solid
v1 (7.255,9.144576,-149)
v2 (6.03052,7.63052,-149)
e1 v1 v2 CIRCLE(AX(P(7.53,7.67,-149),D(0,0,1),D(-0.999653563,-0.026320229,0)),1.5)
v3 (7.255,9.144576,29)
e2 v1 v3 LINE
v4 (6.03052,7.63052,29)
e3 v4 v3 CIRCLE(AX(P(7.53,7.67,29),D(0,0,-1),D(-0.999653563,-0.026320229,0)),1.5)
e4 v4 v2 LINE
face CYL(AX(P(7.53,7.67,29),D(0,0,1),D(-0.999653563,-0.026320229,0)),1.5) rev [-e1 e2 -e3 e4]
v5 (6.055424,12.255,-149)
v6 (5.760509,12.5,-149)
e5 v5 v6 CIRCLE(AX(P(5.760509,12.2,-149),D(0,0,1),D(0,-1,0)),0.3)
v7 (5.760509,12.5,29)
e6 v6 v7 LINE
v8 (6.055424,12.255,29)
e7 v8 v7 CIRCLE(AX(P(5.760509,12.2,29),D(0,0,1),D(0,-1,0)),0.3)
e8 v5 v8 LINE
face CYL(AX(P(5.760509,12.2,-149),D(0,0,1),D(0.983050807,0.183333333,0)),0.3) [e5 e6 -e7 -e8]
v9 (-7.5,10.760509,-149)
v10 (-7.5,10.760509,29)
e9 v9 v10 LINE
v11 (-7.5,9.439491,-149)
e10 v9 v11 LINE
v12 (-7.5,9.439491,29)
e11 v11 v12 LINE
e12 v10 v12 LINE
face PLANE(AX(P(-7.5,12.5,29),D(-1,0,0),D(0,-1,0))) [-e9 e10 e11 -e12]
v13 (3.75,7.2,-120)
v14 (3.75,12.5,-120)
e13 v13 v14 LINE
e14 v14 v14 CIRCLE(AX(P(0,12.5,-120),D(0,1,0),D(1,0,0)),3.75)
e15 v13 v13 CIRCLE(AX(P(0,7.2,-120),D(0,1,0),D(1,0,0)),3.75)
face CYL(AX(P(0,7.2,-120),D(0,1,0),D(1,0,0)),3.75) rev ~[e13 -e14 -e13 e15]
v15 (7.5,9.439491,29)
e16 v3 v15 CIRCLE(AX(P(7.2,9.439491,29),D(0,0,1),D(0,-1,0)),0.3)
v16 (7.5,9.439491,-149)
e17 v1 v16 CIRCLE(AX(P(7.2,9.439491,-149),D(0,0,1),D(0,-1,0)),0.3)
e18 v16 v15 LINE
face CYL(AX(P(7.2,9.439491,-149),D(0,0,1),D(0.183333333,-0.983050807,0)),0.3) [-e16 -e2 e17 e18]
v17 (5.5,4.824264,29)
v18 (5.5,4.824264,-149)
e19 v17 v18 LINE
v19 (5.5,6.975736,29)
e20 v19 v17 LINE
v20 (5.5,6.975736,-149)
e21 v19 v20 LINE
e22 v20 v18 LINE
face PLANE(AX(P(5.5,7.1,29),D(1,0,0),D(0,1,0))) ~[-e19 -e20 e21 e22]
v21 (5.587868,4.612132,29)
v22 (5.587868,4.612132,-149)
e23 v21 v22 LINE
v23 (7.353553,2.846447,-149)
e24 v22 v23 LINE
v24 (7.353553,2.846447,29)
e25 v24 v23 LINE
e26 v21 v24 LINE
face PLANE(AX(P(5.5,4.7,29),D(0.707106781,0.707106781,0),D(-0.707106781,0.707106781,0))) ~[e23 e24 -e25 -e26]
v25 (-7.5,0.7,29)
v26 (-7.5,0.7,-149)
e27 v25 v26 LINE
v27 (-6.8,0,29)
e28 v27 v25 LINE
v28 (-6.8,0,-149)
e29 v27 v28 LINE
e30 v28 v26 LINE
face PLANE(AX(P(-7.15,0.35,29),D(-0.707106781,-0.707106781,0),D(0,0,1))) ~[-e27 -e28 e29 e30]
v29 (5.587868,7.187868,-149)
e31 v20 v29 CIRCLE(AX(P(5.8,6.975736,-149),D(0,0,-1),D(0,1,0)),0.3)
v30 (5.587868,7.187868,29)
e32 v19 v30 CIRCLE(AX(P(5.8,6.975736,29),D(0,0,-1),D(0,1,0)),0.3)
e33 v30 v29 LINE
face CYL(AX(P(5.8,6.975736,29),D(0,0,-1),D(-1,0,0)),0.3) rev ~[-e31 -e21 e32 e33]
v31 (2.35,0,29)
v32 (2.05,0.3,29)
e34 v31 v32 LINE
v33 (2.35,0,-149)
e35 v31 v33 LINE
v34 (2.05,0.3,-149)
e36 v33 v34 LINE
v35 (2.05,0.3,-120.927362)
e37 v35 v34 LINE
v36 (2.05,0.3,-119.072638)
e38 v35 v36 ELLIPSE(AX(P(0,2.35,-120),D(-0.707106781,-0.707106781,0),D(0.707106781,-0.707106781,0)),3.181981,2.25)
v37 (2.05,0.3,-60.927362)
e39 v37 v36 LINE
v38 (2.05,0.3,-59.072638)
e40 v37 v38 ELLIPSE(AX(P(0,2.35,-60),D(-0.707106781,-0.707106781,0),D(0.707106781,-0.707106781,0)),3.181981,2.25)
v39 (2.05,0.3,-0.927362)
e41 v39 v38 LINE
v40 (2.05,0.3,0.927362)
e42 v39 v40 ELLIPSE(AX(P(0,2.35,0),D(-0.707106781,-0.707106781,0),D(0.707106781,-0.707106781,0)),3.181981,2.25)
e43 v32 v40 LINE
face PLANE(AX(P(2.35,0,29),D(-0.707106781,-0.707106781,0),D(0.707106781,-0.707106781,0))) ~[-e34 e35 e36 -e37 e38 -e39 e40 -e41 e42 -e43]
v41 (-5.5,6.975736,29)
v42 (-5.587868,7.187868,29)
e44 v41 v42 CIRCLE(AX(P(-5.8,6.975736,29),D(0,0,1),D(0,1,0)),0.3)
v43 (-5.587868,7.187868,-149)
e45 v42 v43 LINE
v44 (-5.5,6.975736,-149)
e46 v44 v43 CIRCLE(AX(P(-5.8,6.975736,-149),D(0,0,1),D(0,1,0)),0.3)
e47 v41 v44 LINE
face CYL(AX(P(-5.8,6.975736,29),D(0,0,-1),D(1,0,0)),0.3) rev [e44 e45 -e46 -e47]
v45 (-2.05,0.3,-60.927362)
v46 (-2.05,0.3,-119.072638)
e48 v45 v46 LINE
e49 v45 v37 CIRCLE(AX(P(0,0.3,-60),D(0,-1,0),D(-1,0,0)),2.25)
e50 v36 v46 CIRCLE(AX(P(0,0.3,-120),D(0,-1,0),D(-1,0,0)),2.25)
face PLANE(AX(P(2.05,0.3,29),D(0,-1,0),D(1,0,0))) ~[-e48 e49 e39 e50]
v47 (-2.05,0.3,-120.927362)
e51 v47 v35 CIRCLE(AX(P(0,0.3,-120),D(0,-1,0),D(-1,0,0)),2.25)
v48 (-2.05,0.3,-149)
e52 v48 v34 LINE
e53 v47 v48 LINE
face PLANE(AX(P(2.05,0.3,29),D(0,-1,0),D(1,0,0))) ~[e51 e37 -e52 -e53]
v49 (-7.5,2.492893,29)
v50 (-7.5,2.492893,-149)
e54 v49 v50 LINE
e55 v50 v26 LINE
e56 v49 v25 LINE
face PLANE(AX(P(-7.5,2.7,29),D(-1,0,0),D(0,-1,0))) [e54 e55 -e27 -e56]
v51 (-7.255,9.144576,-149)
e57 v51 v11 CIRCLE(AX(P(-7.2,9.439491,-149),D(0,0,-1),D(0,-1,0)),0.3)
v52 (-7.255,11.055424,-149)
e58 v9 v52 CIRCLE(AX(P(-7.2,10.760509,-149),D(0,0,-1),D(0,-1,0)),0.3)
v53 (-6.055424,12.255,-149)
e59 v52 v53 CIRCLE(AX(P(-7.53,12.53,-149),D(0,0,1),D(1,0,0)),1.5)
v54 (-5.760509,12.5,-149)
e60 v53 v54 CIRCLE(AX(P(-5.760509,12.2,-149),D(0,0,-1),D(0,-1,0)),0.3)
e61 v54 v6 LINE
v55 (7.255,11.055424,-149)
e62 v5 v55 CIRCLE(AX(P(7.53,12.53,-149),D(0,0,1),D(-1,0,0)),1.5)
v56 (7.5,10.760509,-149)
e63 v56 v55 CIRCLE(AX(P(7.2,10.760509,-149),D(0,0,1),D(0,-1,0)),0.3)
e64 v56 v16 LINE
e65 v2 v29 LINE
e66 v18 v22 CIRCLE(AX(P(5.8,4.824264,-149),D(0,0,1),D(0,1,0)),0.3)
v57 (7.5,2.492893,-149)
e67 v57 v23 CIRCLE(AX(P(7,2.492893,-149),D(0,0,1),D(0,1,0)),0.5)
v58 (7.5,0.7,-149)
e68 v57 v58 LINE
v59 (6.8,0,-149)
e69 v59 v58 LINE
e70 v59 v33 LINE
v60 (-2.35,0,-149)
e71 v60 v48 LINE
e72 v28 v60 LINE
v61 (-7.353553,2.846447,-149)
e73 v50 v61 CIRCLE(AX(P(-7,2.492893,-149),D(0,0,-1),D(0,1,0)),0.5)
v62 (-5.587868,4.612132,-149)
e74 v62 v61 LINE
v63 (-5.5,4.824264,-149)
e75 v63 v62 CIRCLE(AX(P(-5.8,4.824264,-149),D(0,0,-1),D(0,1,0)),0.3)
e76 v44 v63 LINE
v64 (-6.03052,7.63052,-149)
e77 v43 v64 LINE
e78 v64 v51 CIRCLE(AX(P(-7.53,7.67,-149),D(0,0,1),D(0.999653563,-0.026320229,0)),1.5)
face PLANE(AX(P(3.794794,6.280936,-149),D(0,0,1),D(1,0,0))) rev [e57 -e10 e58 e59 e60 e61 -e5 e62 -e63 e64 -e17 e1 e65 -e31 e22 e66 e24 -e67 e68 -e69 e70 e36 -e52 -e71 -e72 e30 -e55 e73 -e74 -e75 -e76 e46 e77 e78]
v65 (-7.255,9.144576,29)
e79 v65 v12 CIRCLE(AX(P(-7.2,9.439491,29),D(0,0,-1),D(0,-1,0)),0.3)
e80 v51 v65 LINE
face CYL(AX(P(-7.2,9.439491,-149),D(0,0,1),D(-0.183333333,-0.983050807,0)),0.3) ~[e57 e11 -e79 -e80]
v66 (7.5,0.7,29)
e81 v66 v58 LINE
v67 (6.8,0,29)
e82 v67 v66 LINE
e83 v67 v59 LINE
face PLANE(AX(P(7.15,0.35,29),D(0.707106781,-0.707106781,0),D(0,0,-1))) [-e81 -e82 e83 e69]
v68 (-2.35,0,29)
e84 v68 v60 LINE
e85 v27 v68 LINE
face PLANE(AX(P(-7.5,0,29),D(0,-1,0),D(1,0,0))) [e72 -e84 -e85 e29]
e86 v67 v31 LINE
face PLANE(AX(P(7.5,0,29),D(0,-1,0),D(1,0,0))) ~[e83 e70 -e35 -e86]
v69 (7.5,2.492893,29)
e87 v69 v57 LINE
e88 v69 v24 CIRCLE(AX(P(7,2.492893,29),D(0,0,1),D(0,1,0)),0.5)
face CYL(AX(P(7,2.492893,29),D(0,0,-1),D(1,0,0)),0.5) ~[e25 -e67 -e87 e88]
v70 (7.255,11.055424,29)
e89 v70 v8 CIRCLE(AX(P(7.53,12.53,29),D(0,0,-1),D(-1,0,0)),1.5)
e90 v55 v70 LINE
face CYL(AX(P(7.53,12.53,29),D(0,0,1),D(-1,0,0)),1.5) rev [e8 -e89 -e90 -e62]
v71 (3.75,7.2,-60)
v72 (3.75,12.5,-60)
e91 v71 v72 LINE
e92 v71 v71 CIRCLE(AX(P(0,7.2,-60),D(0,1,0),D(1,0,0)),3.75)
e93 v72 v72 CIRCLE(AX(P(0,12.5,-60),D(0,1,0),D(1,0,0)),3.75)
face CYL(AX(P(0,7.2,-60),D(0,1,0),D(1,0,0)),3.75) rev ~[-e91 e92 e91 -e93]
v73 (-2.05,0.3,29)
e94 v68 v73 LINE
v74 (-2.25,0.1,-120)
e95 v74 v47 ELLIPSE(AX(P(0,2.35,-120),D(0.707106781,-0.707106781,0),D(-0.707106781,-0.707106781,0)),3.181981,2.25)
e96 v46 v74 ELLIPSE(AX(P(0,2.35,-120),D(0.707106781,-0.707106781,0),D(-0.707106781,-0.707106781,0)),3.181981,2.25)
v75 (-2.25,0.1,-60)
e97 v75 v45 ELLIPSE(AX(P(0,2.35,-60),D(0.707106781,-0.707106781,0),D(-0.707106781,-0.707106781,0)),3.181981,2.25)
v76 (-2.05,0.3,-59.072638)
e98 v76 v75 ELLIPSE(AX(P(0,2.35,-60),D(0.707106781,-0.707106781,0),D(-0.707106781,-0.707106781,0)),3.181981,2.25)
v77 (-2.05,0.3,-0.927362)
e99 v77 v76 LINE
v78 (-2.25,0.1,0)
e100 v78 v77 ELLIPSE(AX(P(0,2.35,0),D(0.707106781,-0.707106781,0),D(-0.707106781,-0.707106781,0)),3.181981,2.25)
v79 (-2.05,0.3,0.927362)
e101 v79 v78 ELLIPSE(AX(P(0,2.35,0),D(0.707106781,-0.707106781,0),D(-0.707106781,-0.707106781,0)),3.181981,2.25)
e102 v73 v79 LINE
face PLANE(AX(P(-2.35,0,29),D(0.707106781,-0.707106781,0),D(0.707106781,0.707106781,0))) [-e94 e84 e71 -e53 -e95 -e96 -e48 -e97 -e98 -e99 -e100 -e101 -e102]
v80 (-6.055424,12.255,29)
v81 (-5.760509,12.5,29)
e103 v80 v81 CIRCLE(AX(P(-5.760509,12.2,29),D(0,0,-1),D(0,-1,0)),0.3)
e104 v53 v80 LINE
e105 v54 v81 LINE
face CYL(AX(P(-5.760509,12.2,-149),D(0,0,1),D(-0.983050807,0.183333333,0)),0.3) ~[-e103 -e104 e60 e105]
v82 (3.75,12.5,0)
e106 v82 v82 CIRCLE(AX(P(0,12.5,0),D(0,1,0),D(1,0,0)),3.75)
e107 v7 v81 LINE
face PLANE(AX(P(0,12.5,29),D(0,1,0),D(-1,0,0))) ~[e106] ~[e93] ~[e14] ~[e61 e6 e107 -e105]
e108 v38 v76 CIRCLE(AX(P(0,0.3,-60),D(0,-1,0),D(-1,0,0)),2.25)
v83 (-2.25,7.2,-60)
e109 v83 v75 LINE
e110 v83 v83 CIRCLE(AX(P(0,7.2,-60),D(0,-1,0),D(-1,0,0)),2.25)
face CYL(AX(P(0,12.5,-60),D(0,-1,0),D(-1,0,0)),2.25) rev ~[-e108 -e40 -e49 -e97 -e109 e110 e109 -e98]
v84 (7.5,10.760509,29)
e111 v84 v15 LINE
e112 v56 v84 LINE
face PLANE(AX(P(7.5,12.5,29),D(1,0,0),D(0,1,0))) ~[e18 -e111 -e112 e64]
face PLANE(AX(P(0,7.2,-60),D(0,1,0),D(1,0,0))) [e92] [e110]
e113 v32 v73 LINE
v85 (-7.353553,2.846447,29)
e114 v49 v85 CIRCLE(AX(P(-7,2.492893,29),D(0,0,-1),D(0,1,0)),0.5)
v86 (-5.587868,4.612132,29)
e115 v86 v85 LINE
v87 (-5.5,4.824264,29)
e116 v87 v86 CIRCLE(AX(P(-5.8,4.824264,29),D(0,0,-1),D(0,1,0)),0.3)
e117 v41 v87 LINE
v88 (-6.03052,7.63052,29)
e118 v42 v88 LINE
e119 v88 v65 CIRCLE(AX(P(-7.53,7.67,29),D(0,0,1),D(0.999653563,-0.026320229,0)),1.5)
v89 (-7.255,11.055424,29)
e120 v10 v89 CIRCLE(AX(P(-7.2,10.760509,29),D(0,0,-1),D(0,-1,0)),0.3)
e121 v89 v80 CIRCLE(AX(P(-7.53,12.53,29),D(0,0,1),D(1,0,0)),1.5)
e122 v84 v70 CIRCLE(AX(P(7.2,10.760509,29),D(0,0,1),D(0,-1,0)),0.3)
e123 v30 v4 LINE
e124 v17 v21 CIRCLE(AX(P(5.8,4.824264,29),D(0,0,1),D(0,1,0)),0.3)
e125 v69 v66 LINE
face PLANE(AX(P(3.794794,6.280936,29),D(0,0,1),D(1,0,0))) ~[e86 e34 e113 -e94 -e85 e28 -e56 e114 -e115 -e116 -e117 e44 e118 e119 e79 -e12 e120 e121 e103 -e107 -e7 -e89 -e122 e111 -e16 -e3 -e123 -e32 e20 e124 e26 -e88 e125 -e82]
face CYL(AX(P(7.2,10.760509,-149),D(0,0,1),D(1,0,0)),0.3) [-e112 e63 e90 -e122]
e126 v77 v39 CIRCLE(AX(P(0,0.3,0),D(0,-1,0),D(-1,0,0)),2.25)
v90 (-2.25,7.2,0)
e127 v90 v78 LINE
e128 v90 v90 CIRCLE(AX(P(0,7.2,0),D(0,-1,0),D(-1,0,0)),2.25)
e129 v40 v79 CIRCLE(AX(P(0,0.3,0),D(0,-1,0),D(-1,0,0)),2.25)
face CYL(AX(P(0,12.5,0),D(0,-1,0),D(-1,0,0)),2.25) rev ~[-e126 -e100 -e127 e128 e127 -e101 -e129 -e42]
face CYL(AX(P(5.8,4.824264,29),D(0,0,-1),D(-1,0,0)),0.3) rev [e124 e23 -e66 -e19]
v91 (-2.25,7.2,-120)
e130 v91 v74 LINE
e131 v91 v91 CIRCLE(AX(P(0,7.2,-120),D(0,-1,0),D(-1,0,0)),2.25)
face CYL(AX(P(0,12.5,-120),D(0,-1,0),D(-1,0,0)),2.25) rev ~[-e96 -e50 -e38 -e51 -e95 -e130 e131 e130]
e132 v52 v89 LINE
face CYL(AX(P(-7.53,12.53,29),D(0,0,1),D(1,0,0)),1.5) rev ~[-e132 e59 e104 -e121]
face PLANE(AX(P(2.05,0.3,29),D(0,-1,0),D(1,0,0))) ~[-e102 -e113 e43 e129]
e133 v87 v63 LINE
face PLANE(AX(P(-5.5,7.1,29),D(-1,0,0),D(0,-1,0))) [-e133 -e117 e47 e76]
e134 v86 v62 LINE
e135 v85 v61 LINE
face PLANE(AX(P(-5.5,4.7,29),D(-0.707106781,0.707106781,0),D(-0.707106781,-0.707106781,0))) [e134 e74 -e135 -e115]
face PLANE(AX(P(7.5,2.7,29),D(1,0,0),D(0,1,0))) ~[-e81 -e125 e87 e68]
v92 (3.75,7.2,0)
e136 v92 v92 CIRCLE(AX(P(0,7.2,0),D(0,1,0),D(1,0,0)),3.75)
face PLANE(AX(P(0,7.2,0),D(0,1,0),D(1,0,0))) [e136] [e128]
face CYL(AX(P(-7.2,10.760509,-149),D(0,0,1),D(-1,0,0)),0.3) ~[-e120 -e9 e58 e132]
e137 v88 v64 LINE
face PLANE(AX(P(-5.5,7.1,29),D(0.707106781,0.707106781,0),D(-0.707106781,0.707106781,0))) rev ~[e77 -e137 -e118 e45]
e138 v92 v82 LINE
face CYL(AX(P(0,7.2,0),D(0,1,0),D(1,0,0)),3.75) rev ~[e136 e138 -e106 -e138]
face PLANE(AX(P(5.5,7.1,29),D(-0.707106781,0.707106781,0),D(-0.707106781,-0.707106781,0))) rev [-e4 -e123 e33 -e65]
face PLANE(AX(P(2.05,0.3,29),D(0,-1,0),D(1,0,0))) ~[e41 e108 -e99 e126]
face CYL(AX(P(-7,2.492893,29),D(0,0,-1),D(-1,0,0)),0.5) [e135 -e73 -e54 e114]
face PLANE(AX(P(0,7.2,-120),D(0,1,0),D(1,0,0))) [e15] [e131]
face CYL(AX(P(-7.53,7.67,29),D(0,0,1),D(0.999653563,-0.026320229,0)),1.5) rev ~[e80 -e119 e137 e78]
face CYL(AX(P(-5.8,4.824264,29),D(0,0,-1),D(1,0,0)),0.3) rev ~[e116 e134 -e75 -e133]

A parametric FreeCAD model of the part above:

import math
import FreeCAD as App
import Part
import Sketcher

V = App.Vector
Q = App.Units.Quantity


def edges_at(feature, points):
    """Names of the edges that pass closest to the given points."""
    edges = feature.Shape.Edges
    near = lambda p: min(range(len(edges)), key=lambda i: edges[i].distToShape(Part.Vertex(*p))[0])
    return sorted({f"Edge{near(p) + 1}" for p in points})

doc = App.newDocument("Part")
params = doc.addObject("Spreadsheet::Sheet", "Params")
for row, (alias, value) in enumerate([
    ("sketch1_width", "2 mm"),
    ("sketch1_width2", "7.5 mm"),
    ("sketch1_height", "12.2 mm"),
    ("sketch1_height2", "5.4 mm"),
    ("sketch1_height3", "2.4 mm"),
    ("pad1_length", "178 mm"),
    ("sketch2_diameter", "3 mm"),
    ("sketch2_height", "2.4 mm"),
    ("chamfer_size", "0.7 mm"),
    ("fillet_radius", "0.5 mm"),
    ("fillet2_radius", "0.3 mm"),
    ("fillet3_radius", "0.3 mm"),
    ("fillet4_radius", "0.3 mm"),
    ("chamfer2_size", "0.7 mm"),
    ("fillet5_radius", "0.5 mm"),
    ("fillet6_radius", "0.3 mm"),
    ("fillet7_radius", "0.3 mm"),
    ("fillet8_radius", "0.3 mm"),
    ("sketch3_diameter", "4.5 mm"),
    ("hole_diameter", "4.5 mm"),
    ("hole_cbore_diameter", "7.5 mm"),
    ("hole_cbore_depth", "5.3 mm"),
    ("linearpattern_pitch", "60 mm"),
], start=1):
    params.set(f"A{row}", alias)
    params.set(f"B{row}", "=" + value)
    params.setAlias(f"B{row}", alias)

body = doc.addObject("PartDesign::Body", "Body")

sketch1 = doc.addObject("Sketcher::SketchObject", "Sketch")
body.addObject(sketch1)
sketch1.AttachmentSupport = (doc.XY_Plane, [""])
sketch1.MapMode = "FlatFace"
sketch1.AttachmentOffset = App.Placement(V(0, 0, 29), App.Rotation())
sketch1.addGeometry([
    Part.LineSegment(V(-2.05, 0.3, 0), V(0, 0.3, 0)),
    Part.LineSegment(V(0, 0.3, 0), V(0, 12.5, 0)),
    Part.LineSegment(V(0, 12.5, 0), V(-7.5, 12.5, 0)),
    Part.LineSegment(V(-7.5, 12.5, 0), V(-7.5, 7.1, 0)),
    Part.LineSegment(V(-7.5, 7.1, 0), V(-5.5, 7.1, 0)),
    Part.LineSegment(V(-5.5, 7.1, 0), V(-5.5, 4.7, 0)),
    Part.LineSegment(V(-5.5, 4.7, 0), V(-7.5, 2.7, 0)),
    Part.LineSegment(V(-7.5, 2.7, 0), V(-7.5, 0, 0)),
    Part.LineSegment(V(-7.5, 0, 0), V(-2.35, 0, 0)),
    Part.LineSegment(V(-2.35, 0, 0), V(-2.05, 0.3, 0)),
], False)
sketch1.addConstraint([
    Sketcher.Constraint("Coincident", 0, 2, 1, 1),
    Sketcher.Constraint("Coincident", 1, 2, 2, 1),
    Sketcher.Constraint("Coincident", 2, 2, 3, 1),
    Sketcher.Constraint("Coincident", 3, 2, 4, 1),
    Sketcher.Constraint("Coincident", 4, 2, 5, 1),
    Sketcher.Constraint("Coincident", 5, 2, 6, 1),
    Sketcher.Constraint("Coincident", 6, 2, 7, 1),
    Sketcher.Constraint("Coincident", 7, 2, 8, 1),
    Sketcher.Constraint("Coincident", 8, 2, 9, 1),
    Sketcher.Constraint("Coincident", 9, 2, 0, 1),
    Sketcher.Constraint("Horizontal", 0),
    Sketcher.Constraint("Vertical", 1),
    Sketcher.Constraint("Horizontal", 2),
    Sketcher.Constraint("Vertical", 3),
    Sketcher.Constraint("Horizontal", 4),
    Sketcher.Constraint("Vertical", 5),
    Sketcher.Constraint("Vertical", 7),
    Sketcher.Constraint("Horizontal", 8),
    Sketcher.Constraint("PointOnObject", 0, 2, -2),
    Sketcher.Constraint("PointOnObject", 7, 2, -1),
    Sketcher.Constraint("Parallel", 6, 9),
    Sketcher.Constraint("Vertical", 3, 2, 6, 2),
    Sketcher.Constraint("DistanceX", 4, 1, 4, 2, 2.0),
    Sketcher.Constraint("Angle", 6, Q("-135 deg")),
    Sketcher.Constraint("DistanceX", 2, 2, 2, 1, 7.5),
    Sketcher.Constraint("DistanceY", 1, 1, 1, 2, 12.2),
    Sketcher.Constraint("DistanceY", 3, 2, 3, 1, 5.4),
    Sketcher.Constraint("DistanceY", 5, 2, 5, 1, 2.4),
    Sketcher.Constraint("DistanceY", 7, 2, 7, 1, 2.7),
    Sketcher.Constraint("DistanceX", 0, 1, 0, 2, 2.05),
])
sketch1.setExpression("Constraints[22]", "Params.sketch1_width")
sketch1.setExpression("Constraints[24]", "Params.sketch1_width2")
sketch1.setExpression("Constraints[25]", "Params.sketch1_height")
sketch1.setExpression("Constraints[26]", "Params.sketch1_height2")
sketch1.setExpression("Constraints[27]", "Params.sketch1_height3")
pad1 = doc.addObject("PartDesign::Pad", "Pad")
body.addObject(pad1)
pad1.Profile = sketch1
pad1.setExpression("Length", "Params.pad1_length")
pad1.Reversed = True

sketch2 = doc.addObject("Sketcher::SketchObject", "Sketch001")
body.addObject(sketch2)
sketch2.AttachmentSupport = (doc.XY_Plane, [""])
sketch2.MapMode = "FlatFace"
sketch2.AttachmentOffset = App.Placement(V(0, 0, 29), App.Rotation())
sketch2.addGeometry([
    Part.Circle(V(-7.5, 12.5, 0), V(0, 0, 1), 1.5),
    Part.LineSegment(V(-5.5, 7.1, 0), V(-6, 7.6, 0)),
    Part.ArcOfCircle(Part.Circle(V(-7.5, 7.7, 0), V(0, 0, 1), 1.5), math.radians(-2), math.radians(270)),
    Part.LineSegment(V(-7.5, 6.2, 0), V(-7.5, 2.7, 0)),
    Part.LineSegment(V(-7.5, 2.7, 0), V(-5.5, 4.7, 0)),
    Part.LineSegment(V(-5.5, 4.7, 0), V(-5.5, 7.1, 0)),
], False)
sketch2.addConstraint([
    Sketcher.Constraint("Coincident", 1, 2, 2, 1),
    Sketcher.Constraint("Coincident", 2, 2, 3, 1),
    Sketcher.Constraint("Coincident", 3, 2, 4, 1),
    Sketcher.Constraint("Coincident", 4, 2, 5, 1),
    Sketcher.Constraint("Coincident", 5, 2, 1, 1),
    Sketcher.Constraint("Vertical", 5),
    Sketcher.Constraint("Equal", 0, 2),
    Sketcher.Constraint("Perpendicular", 1, 4),
    Sketcher.Constraint("Vertical", 0, 3, 2, 3),
    Sketcher.Constraint("Vertical", 0, 3, 2, 2),
    Sketcher.Constraint("Diameter", 0, 3.0),
    Sketcher.Constraint("Angle", 1, Q("135 deg")),
    Sketcher.Constraint("DistanceY", 5, 1, 5, 2, 2.4),
    Sketcher.Constraint("DistanceX", 3, 2, 4, 2, 2.0),
    Sketcher.Constraint("DistanceX", 3, 2, -1, 1, 7.5),
    Sketcher.Constraint("DistanceY", -1, 1, 3, 2, 2.7),
    Sketcher.Constraint("DistanceX", 0, 3, -1, 1, 7.53),
    Sketcher.Constraint("DistanceY", -1, 1, 0, 3, 12.53),
    Sketcher.Constraint("DistanceY", -1, 1, 2, 3, 7.67),
])
sketch2.setExpression("Constraints[10]", "Params.sketch2_diameter")
sketch2.setExpression("Constraints[12]", "Params.sketch2_height")
pocket1 = doc.addObject("PartDesign::Pocket", "Pocket")
body.addObject(pocket1)
pocket1.Profile = sketch2
pocket1.Type = "ThroughAll"
doc.recompute()

chamfer = doc.addObject("PartDesign::Chamfer", "Chamfer")
body.addObject(chamfer)
chamfer.Base = (pocket1, edges_at(pocket1, [(-7.5, 0, -60)]))
chamfer.setExpression("Size", "Params.chamfer_size")
doc.recompute()

fillet = doc.addObject("PartDesign::Fillet", "Fillet")
body.addObject(fillet)
fillet.Base = (chamfer, edges_at(chamfer, [(-7.5, 2.7, -60)]))
fillet.setExpression("Radius", "Params.fillet_radius")
doc.recompute()

fillet2 = doc.addObject("PartDesign::Fillet", "Fillet001")
body.addObject(fillet2)
fillet2.Base = (fillet, edges_at(fillet, [(-5.5, 7.1, -60)]))
fillet2.setExpression("Radius", "Params.fillet2_radius")
doc.recompute()

fillet3 = doc.addObject("PartDesign::Fillet", "Fillet002")
body.addObject(fillet3)
fillet3.Base = (fillet2, edges_at(fillet2, [(-7.5, 11.03, -60), (-6.03, 12.5, -60), (-7.5, 9.17, -60)]))
fillet3.setExpression("Radius", "Params.fillet3_radius")
doc.recompute()

fillet4 = doc.addObject("PartDesign::Fillet", "Fillet003")
body.addObject(fillet4)
fillet4.Base = (fillet3, edges_at(fillet3, [(-5.5, 4.7, -60)]))
fillet4.setExpression("Radius", "Params.fillet4_radius")
doc.recompute()

mirrored = doc.addObject("PartDesign::Mirrored", "Mirrored")
body.addObject(mirrored)
mirrored.Originals = [pad1, pocket1]
mirrored.MirrorPlane = (doc.YZ_Plane, [""])
body.Tip = mirrored
doc.recompute()

chamfer2 = doc.addObject("PartDesign::Chamfer", "Chamfer001")
body.addObject(chamfer2)
chamfer2.Base = (mirrored, edges_at(mirrored, [(7.5, 0, -60)]))
chamfer2.setExpression("Size", "Params.chamfer2_size")
doc.recompute()

fillet5 = doc.addObject("PartDesign::Fillet", "Fillet004")
body.addObject(fillet5)
fillet5.Base = (chamfer2, edges_at(chamfer2, [(7.5, 2.7, -60)]))
fillet5.setExpression("Radius", "Params.fillet5_radius")
doc.recompute()

fillet6 = doc.addObject("PartDesign::Fillet", "Fillet005")
body.addObject(fillet6)
fillet6.Base = (fillet5, edges_at(fillet5, [(5.5, 7.1, -60)]))
fillet6.setExpression("Radius", "Params.fillet6_radius")
doc.recompute()

fillet7 = doc.addObject("PartDesign::Fillet", "Fillet006")
body.addObject(fillet7)
fillet7.Base = (fillet6, edges_at(fillet6, [(7.5, 11.03, -60), (6.03, 12.5, -60), (7.5, 9.17, -60)]))
fillet7.setExpression("Radius", "Params.fillet7_radius")
doc.recompute()

fillet8 = doc.addObject("PartDesign::Fillet", "Fillet007")
body.addObject(fillet8)
fillet8.Base = (fillet7, edges_at(fillet7, [(5.5, 4.7, -60)]))
fillet8.setExpression("Radius", "Params.fillet8_radius")

sketch3 = doc.addObject("Sketcher::SketchObject", "Sketch002")
body.addObject(sketch3)
sketch3.AttachmentSupport = (doc.XZ_Plane, [""])
sketch3.MapMode = "FlatFace"
sketch3.AttachmentOffset = App.Placement(V(0, 0, -12.5), App.Rotation())
sketch3.addGeometry(Part.Circle(V(0, 0, 0), V(0, 0, 1), 2.2), False)
sketch3.addConstraint([
    Sketcher.Constraint("Coincident", 0, 3, -1, 1),
    Sketcher.Constraint("Diameter", 0, 4.5),
])
sketch3.setExpression("Constraints[1]", "Params.sketch3_diameter")
doc.recompute()
hole = doc.addObject("PartDesign::Hole", "Hole")
body.addObject(hole)
hole.Profile = sketch3
hole.ThreadType = "None"
hole.setExpression("Diameter", "Params.hole_diameter")
hole.DepthType = "ThroughAll"
hole.HoleCutType = "Counterbore"
hole.setExpression("HoleCutDiameter", "Params.hole_cbore_diameter")
hole.setExpression("HoleCutDepth", "Params.hole_cbore_depth")
hole.Reversed = True
doc.recompute()

linearpattern = doc.addObject("PartDesign::LinearPattern", "LinearPattern")
body.addObject(linearpattern)
linearpattern.Originals = [hole]
linearpattern.Direction = (doc.Z_Axis, [""])
linearpattern.Mode = "offset"
linearpattern.setExpression("Offset", "Params.linearpattern_pitch")
linearpattern.Occurrences = 3
linearpattern.Reversed = True
body.Tip = linearpattern

doc.recompute()
